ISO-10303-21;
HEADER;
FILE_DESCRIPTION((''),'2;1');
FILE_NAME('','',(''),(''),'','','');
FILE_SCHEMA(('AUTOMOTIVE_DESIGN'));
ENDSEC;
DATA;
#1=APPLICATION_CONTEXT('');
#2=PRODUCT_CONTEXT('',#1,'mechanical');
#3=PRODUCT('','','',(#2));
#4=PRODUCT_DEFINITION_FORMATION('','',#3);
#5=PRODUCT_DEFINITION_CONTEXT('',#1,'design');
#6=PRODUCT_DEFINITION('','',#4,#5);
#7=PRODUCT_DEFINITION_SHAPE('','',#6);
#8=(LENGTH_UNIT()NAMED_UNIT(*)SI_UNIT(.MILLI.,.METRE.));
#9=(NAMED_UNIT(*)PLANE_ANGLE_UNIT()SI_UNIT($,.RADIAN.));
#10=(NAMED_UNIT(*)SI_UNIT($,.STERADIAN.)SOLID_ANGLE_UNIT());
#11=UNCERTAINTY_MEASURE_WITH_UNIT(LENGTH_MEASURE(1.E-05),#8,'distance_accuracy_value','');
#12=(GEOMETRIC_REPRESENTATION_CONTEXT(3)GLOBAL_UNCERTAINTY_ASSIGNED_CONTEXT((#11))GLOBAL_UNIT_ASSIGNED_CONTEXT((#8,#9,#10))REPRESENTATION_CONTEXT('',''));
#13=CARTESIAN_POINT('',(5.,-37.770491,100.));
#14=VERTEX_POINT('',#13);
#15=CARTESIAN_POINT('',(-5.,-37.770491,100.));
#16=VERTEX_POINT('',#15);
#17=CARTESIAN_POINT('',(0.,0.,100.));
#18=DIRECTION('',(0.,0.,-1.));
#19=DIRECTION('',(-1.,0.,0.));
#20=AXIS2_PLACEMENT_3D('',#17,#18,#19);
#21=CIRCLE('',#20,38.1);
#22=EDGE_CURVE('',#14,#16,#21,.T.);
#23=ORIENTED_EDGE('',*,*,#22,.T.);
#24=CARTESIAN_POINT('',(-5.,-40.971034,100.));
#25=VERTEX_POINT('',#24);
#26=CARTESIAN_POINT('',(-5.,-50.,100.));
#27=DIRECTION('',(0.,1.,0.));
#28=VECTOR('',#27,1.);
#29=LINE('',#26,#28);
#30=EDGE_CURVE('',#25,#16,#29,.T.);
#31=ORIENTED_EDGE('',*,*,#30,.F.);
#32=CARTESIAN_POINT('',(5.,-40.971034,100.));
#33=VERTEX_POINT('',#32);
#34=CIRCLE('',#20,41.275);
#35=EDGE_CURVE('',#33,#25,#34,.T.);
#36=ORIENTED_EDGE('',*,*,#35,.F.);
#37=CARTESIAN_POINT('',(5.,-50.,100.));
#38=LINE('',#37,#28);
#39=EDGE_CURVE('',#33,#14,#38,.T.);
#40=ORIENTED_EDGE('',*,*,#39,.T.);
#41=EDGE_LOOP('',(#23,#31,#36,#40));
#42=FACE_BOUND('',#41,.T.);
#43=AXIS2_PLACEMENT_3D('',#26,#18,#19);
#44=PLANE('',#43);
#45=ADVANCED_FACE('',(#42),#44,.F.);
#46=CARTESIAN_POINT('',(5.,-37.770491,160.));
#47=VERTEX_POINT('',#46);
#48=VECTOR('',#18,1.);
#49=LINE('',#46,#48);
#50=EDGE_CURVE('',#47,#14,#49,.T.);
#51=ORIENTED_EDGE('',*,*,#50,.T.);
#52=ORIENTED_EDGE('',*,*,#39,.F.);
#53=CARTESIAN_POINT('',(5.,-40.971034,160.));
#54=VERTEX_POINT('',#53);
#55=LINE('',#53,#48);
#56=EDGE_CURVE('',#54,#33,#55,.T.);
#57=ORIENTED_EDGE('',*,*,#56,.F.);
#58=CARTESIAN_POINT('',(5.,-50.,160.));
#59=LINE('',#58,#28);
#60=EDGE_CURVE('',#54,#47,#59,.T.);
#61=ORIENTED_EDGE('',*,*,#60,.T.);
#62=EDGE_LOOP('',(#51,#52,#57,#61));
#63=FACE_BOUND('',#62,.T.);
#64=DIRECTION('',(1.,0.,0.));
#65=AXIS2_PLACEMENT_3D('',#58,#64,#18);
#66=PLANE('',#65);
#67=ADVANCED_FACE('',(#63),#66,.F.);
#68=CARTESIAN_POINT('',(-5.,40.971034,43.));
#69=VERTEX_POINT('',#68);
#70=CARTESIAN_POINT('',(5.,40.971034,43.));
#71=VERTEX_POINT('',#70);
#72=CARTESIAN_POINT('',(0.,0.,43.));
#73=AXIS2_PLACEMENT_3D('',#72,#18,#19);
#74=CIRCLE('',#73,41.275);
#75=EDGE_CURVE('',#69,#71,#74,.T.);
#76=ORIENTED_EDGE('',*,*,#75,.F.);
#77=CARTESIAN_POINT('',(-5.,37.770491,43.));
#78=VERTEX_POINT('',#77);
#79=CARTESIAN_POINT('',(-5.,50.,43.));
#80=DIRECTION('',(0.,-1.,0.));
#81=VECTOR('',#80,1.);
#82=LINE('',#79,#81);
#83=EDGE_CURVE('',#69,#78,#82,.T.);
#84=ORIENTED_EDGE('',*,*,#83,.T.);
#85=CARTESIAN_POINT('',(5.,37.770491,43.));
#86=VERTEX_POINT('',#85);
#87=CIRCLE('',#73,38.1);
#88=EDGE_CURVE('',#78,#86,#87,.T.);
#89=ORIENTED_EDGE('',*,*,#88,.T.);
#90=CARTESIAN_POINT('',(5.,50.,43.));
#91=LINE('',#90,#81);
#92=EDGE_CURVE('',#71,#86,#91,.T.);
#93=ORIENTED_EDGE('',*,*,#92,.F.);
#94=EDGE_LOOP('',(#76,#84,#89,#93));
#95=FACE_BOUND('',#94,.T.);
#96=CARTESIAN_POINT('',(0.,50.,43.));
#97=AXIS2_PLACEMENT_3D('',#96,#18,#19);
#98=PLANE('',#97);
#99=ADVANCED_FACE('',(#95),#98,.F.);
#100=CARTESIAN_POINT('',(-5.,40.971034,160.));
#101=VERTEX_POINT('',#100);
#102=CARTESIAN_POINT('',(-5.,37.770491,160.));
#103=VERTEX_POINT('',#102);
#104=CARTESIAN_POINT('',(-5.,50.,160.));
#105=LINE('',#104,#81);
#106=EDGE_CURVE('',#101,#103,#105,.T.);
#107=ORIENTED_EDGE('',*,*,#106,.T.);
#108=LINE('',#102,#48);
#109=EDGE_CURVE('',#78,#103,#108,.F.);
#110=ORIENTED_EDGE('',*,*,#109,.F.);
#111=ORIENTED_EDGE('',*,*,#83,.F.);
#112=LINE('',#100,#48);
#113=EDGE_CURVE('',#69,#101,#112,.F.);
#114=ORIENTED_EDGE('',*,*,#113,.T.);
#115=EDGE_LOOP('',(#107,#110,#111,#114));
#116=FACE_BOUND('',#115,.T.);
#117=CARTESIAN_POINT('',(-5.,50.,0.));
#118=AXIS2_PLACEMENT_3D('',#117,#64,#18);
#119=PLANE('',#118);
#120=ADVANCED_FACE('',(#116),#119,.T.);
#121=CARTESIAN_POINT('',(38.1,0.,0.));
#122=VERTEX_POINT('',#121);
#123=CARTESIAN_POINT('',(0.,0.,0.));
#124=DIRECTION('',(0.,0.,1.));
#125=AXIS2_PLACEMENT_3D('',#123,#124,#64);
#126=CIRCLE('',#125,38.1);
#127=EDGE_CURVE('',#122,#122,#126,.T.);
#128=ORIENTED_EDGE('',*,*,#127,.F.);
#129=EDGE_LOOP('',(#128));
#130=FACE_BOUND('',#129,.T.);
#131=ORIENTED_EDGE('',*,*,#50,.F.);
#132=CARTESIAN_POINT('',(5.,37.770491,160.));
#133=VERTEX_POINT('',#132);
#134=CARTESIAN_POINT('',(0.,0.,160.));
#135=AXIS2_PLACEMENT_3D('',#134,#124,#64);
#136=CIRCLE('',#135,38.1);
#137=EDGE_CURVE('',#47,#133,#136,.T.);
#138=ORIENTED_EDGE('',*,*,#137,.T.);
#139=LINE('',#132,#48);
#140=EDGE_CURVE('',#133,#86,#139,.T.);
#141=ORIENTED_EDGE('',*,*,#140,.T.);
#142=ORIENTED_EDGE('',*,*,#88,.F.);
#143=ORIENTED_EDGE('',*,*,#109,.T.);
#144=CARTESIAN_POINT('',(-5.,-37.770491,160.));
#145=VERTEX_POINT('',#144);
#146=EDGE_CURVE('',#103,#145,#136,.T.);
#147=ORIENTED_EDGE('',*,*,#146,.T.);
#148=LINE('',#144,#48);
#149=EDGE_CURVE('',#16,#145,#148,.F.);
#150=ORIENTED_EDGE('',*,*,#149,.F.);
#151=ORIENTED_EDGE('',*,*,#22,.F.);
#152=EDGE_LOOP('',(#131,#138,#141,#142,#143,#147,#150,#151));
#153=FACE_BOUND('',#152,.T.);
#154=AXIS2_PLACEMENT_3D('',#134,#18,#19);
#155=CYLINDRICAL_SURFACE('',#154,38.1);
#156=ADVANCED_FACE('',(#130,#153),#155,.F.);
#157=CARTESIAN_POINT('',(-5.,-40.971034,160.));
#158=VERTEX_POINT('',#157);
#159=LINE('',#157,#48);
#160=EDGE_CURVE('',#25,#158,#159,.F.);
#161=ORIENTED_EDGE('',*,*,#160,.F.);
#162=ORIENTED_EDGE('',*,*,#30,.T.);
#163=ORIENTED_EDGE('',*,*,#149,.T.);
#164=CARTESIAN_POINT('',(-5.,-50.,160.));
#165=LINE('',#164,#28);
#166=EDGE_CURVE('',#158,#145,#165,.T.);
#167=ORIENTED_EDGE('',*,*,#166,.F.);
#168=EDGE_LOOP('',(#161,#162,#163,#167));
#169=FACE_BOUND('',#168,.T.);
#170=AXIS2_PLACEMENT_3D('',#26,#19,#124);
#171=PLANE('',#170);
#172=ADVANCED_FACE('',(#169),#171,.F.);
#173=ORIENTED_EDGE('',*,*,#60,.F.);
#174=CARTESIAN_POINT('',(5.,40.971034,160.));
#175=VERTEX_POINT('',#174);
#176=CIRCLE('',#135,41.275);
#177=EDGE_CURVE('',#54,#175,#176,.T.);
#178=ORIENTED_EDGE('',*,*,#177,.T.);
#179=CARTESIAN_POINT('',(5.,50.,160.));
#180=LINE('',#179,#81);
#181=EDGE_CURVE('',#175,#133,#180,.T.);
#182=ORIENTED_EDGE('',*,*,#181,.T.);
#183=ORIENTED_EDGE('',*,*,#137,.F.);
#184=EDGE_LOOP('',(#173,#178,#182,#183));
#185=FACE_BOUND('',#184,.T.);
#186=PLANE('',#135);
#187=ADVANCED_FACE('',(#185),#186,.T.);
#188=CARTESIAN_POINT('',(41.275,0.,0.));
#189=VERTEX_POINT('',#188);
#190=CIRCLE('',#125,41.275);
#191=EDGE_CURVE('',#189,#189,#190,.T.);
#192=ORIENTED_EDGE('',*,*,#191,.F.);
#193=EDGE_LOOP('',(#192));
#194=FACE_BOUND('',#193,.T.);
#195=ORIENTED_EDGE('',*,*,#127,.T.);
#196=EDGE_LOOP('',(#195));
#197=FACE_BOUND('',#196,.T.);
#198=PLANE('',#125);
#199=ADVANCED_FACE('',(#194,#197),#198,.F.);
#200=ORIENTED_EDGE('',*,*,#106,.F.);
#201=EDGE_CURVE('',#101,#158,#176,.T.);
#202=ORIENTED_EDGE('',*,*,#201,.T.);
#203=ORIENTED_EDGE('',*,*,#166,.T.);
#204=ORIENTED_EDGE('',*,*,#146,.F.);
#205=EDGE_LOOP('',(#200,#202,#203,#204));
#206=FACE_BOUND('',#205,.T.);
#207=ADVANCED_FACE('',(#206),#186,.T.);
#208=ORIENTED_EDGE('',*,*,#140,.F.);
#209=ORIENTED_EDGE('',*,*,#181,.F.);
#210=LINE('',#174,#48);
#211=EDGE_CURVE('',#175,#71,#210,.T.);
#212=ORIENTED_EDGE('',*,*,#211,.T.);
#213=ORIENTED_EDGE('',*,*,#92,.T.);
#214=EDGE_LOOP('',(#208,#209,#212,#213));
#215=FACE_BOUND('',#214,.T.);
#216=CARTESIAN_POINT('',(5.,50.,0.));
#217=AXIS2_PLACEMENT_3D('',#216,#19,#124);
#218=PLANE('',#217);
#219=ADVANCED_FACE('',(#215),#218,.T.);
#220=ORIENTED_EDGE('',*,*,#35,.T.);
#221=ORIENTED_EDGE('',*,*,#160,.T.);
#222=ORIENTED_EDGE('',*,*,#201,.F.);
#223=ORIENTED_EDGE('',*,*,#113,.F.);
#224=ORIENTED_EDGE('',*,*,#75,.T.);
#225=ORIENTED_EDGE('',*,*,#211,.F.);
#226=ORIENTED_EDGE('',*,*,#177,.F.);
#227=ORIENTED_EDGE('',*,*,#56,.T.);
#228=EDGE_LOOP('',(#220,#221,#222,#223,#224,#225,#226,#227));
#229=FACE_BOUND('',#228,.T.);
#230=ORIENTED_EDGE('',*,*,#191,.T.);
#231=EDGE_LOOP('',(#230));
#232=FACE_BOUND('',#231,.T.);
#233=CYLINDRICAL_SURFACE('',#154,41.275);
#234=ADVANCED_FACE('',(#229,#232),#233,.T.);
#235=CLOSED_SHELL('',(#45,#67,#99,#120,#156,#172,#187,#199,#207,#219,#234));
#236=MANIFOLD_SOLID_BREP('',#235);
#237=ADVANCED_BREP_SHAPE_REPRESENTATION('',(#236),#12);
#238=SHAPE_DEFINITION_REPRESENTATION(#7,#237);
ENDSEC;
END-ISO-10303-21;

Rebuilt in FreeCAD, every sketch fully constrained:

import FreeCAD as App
import Part
import Sketcher
Q = App.Units.Quantity


def add_polygon(sketch, points):
    """Adds a closed chain of lines whose ends are joined by coincident constraints."""
    first, n = sketch.GeometryCount, len(points)
    for a, b in zip(points, points[1:] + points[:1]):
        sketch.addGeometry(Part.LineSegment(App.Vector(*a, 0), App.Vector(*b, 0)), False)
    for i in range(n):
        sketch.addConstraint(Sketcher.Constraint("Coincident", first + i, 2, first + (i + 1) % n, 1))

doc = App.newDocument("Part")
params = doc.addObject("Spreadsheet::Sheet", "Params")
for row, (alias, value) in enumerate([
    ("sketch1_diameter", "76.2 mm"),
    ("sketch1_diameter2", "82.55 mm"),
    ("pad1_length", "160 mm"),
    ("sketch2_width", "10 mm"),
    ("sketch2_height", "60 mm"),
    ("pocket1_length", "50 mm"),
    ("sketch3_width", "10 mm"),
    ("sketch3_height", "117 mm"),
    ("pocket2_length", "50 mm"),
], start=1):
    params.set(f"A{row}", alias)
    params.set(f"B{row}", "=" + value)
    params.setAlias(f"B{row}", alias)

body = doc.addObject("PartDesign::Body", "Body")

# Sketch on XY plane
sketch1 = doc.addObject("Sketcher::SketchObject", "Sketch")
body.addObject(sketch1)
sketch1.AttachmentSupport = (doc.XY_Plane, [""])
sketch1.MapMode = "FlatFace"
sketch1.addGeometry(Part.Circle(App.Vector(0, 0, 0), App.Vector(0, 0, 1), 41.275), False)
sketch1.addGeometry(Part.Circle(App.Vector(0, 0, 0), App.Vector(0, 0, 1), 38.1), False)
sketch1.addConstraint(Sketcher.Constraint("Coincident", 0, 3, -1, 1))
sketch1.addConstraint(Sketcher.Constraint("Coincident", 1, 3, -1, 1))
sketch1.addConstraint(Sketcher.Constraint("Diameter", 1, Q("76.2 mm")))
sketch1.addConstraint(Sketcher.Constraint("Diameter", 0, Q("82.55 mm")))
sketch1.setExpression("Constraints[2]", "Params.sketch1_diameter")
sketch1.setExpression("Constraints[3]", "Params.sketch1_diameter2")
pad1 = doc.addObject("PartDesign::Pad", "Pad")
body.addObject(pad1)
pad1.Profile = sketch1
pad1.setExpression("Length", "Params.pad1_length")

# Sketch on XZ plane
sketch2 = doc.addObject("Sketcher::SketchObject", "Sketch001")
body.addObject(sketch2)
sketch2.AttachmentSupport = (doc.XZ_Plane, [""])
sketch2.MapMode = "FlatFace"
add_polygon(sketch2, [(-5, 100), (-5, 160), (5, 160), (5, 100)])  # lines 0-3
sketch2.addConstraint(Sketcher.Constraint("Vertical", 0))
sketch2.addConstraint(Sketcher.Constraint("Horizontal", 1))
sketch2.addConstraint(Sketcher.Constraint("Vertical", 2))
sketch2.addConstraint(Sketcher.Constraint("Horizontal", 3))
sketch2.addConstraint(Sketcher.Constraint("DistanceX", 1, 1, 1, 2, Q("10 mm")))
sketch2.addConstraint(Sketcher.Constraint("DistanceY", 0, 1, 0, 2, Q("60 mm")))
sketch2.addConstraint(Sketcher.Constraint("DistanceX", 0, 2, -1, 1, Q("5 mm")))
sketch2.addConstraint(Sketcher.Constraint("DistanceY", -1, 1, 0, 2, Q("160 mm")))
sketch2.setExpression("Constraints[8]", "Params.sketch2_width")
sketch2.setExpression("Constraints[9]", "Params.sketch2_height")
pocket1 = doc.addObject("PartDesign::Pocket", "Pocket")
body.addObject(pocket1)
pocket1.Profile = sketch2
pocket1.setExpression("Length", "Params.pocket1_length")
pocket1.Reversed = True

# Sketch on XZ plane
sketch3 = doc.addObject("Sketcher::SketchObject", "Sketch002")
body.addObject(sketch3)
sketch3.AttachmentSupport = (doc.XZ_Plane, [""])
sketch3.MapMode = "FlatFace"
add_polygon(sketch3, [(-5, 43), (-5, 160), (5, 160), (5, 43)])  # lines 0-3
sketch3.addConstraint(Sketcher.Constraint("Vertical", 0))
sketch3.addConstraint(Sketcher.Constraint("Horizontal", 1))
sketch3.addConstraint(Sketcher.Constraint("Vertical", 2))
sketch3.addConstraint(Sketcher.Constraint("Horizontal", 3))
sketch3.addConstraint(Sketcher.Constraint("DistanceX", 1, 1, 1, 2, Q("10 mm")))
sketch3.addConstraint(Sketcher.Constraint("DistanceY", 0, 1, 0, 2, Q("117 mm")))
sketch3.addConstraint(Sketcher.Constraint("DistanceX", 0, 2, -1, 1, Q("5 mm")))
sketch3.addConstraint(Sketcher.Constraint("DistanceY", -1, 1, 0, 2, Q("160 mm")))
sketch3.setExpression("Constraints[8]", "Params.sketch3_width")
sketch3.setExpression("Constraints[9]", "Params.sketch3_height")
pocket2 = doc.addObject("PartDesign::Pocket", "Pocket001")
body.addObject(pocket2)
pocket2.Profile = sketch3
pocket2.setExpression("Length", "Params.pocket2_length")

doc.recompute()
